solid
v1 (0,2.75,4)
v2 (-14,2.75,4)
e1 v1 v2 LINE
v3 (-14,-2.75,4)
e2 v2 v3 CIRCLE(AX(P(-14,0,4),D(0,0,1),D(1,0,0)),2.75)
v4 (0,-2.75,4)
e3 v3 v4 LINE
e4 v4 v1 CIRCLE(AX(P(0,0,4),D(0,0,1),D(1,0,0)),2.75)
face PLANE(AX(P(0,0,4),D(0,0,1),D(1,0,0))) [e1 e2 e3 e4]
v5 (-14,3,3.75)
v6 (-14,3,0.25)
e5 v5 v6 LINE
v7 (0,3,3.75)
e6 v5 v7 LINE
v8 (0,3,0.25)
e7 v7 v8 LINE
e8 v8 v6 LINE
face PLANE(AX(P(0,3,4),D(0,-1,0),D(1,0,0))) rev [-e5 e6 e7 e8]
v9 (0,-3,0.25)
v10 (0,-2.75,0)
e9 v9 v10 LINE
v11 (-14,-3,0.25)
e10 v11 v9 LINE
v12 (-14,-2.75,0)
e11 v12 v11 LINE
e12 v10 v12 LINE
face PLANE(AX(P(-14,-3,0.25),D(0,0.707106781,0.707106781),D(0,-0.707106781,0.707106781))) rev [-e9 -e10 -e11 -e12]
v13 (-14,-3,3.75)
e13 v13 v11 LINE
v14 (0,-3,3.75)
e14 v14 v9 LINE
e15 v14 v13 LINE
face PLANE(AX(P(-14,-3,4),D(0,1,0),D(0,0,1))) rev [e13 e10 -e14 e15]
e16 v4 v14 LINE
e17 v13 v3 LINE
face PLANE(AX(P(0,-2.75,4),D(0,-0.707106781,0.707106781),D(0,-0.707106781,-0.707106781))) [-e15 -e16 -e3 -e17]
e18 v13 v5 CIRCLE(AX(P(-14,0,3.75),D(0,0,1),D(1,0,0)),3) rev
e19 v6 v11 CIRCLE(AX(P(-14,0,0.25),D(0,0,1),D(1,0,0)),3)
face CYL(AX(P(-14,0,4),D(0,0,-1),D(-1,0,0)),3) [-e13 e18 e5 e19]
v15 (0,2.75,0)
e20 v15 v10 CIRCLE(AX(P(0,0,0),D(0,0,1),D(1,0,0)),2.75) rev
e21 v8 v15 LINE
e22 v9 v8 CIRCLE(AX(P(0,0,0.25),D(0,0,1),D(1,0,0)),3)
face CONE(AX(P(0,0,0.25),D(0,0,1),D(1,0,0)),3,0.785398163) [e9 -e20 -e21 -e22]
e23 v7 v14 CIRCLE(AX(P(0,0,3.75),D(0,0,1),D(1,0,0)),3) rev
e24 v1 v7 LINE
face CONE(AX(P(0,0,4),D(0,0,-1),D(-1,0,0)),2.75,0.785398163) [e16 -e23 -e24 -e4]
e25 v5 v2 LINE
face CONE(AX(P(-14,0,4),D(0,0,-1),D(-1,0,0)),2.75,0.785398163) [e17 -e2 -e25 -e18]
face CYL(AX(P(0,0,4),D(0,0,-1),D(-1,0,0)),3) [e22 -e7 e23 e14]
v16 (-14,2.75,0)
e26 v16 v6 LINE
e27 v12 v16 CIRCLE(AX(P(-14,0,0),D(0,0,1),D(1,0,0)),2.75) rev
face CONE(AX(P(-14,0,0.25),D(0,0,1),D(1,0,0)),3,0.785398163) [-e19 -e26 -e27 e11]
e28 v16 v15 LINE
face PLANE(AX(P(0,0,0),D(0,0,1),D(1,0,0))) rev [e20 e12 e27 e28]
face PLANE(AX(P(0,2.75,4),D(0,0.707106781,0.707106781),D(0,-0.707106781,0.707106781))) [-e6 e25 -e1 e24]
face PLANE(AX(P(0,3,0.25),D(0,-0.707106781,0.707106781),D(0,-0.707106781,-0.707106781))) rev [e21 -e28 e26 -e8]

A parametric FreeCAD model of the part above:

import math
import FreeCAD as App
import Part
import Sketcher
from FreeCAD import Vector


def edges_at(feature, points):
    """Names of the edges that pass closest to the given points."""
    edges = feature.Shape.Edges
    near = lambda p: min(range(len(edges)), key=lambda i: edges[i].distToShape(Part.Vertex(*p))[0])
    return sorted({f"Edge{near(p) + 1}" for p in points})

doc = App.newDocument("Part")
params = doc.addObject("Spreadsheet::Sheet", "Params")
for row, (alias, value) in enumerate([
    ("sketch1_radius", "3 mm"),
    ("sketch1_width", "14 mm"),
    ("pad1_length", "4 mm"),
    ("chamfer_size", "0.25 mm"),
], start=1):
    params.set(f"A{row}", alias)
    params.set(f"B{row}", "=" + value)
    params.setAlias(f"B{row}", alias)

body = doc.addObject("PartDesign::Body", "Body")

sketch1 = doc.addObject("Sketcher::SketchObject", "Sketch")
body.addObject(sketch1)
sketch1.AttachmentSupport = (doc.XY_Plane, [""])
sketch1.MapMode = "FlatFace"
sketch1.addGeometry(Part.LineSegment(Vector(0, 3, 0), Vector(-14, 3, 0)), False)
sketch1.addGeometry(Part.ArcOfCircle(Part.Circle(Vector(-14, 0, 0), Vector(0, 0, 1), 3), math.radians(90), math.radians(270)), False)
sketch1.addGeometry(Part.LineSegment(Vector(-14, -3, 0), Vector(0, -3, 0)), False)
sketch1.addGeometry(Part.ArcOfCircle(Part.Circle(Vector(0, 0, 0), Vector(0, 0, 1), 3), math.radians(-90), math.radians(90)), False)
sketch1.addConstraint(Sketcher.Constraint("Tangent", 0, 2, 1, 1))
sketch1.addConstraint(Sketcher.Constraint("Tangent", 1, 2, 2, 1))
sketch1.addConstraint(Sketcher.Constraint("Tangent", 2, 2, 3, 1))
sketch1.addConstraint(Sketcher.Constraint("Tangent", 3, 2, 0, 1))
sketch1.addConstraint(Sketcher.Constraint("Horizontal", 0))
sketch1.addConstraint(Sketcher.Constraint("Horizontal", 2))
sketch1.addConstraint(Sketcher.Constraint("Coincident", 3, 3, -1, 1))
sketch1.addConstraint(Sketcher.Constraint("Radius", 1, 3.0))
sketch1.addConstraint(Sketcher.Constraint("DistanceX", 0, 2, 0, 1, 14.0))
sketch1.setExpression("Constraints[7]", "Params.sketch1_radius")
sketch1.setExpression("Constraints[8]", "Params.sketch1_width")
pad1 = doc.addObject("PartDesign::Pad", "Pad")
body.addObject(pad1)
pad1.Profile = sketch1
pad1.setExpression("Length", "Params.pad1_length")
doc.recompute()

chamfer = doc.addObject("PartDesign::Chamfer", "Chamfer")
body.addObject(chamfer)
chamfer.Base = (pad1, edges_at(pad1, [
    (-17, 0, 4),
    (-7, -3, 4),
    (3, 0, 4),
    (-7, -3, 0),
    (-17, 0, 0),
    (-7, 3, 0),
    (3, 0, 0),
    (-7, 3, 4),
]))
chamfer.setExpression("Size", "Params.chamfer_size")

doc.recompute()
